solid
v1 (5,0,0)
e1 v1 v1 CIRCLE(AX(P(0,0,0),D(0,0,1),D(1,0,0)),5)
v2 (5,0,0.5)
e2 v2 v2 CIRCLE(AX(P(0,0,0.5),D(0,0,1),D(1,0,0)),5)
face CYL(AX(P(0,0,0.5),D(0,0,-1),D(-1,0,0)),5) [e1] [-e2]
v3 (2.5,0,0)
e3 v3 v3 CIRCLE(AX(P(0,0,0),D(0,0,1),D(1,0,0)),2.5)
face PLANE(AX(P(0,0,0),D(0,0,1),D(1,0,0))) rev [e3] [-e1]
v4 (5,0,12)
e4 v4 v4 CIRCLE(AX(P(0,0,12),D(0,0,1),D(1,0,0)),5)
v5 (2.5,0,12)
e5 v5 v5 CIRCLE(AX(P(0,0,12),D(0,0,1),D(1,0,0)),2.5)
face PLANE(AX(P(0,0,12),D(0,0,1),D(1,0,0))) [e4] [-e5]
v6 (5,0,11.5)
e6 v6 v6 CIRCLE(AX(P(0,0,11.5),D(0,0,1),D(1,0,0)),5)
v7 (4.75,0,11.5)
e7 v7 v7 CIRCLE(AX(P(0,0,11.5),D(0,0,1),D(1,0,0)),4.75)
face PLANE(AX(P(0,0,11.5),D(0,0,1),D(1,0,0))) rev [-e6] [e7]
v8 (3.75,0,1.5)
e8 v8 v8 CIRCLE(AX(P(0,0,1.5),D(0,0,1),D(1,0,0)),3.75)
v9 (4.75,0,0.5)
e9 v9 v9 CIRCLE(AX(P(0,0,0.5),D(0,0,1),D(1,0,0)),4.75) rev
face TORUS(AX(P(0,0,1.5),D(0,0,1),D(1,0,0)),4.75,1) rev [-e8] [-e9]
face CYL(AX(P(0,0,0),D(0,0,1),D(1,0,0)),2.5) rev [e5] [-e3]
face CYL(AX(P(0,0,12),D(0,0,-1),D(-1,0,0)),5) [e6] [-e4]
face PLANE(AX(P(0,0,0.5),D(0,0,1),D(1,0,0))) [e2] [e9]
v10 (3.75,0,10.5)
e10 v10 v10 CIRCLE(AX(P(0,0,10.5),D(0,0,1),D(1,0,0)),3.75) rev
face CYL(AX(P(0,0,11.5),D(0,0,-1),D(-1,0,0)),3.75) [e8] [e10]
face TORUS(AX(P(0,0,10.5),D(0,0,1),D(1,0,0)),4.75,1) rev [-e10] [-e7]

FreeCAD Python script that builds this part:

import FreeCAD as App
import Part
import Sketcher


def edges_at(feature, points):
    """Names of the edges that pass closest to the given points."""
    edges = feature.Shape.Edges
    near = lambda p: min(range(len(edges)), key=lambda i: edges[i].distToShape(Part.Vertex(*p))[0])
    return sorted({f"Edge{near(p) + 1}" for p in points})

doc = App.newDocument("Part")
body = doc.addObject("PartDesign::Body", "Body")

sketch1 = body.newObject("Sketcher::SketchObject", "Sketch")
sketch1.AttachmentSupport = (doc.getObject("XY_Plane"), [""])
sketch1.MapMode = "FlatFace"
sketch1.addGeometry(Part.Circle(App.Vector(0, 0, 0), App.Vector(0, 0, 1), 5), False)
sketch1.addConstraint([
    Sketcher.Constraint("Coincident", 0, 3, -1, 1),
    Sketcher.Constraint("Diameter", 0, 10.0),
])
pad1 = body.newObject("PartDesign::Pad", "Pad")
pad1.Profile = sketch1
pad1.Length = 0.5

sketch2 = body.newObject("Sketcher::SketchObject", "Sketch001")
sketch2.AttachmentSupport = (doc.getObject("XY_Plane"), [""])
sketch2.MapMode = "FlatFace"
sketch2.AttachmentOffset = App.Placement(App.Vector(0, 0, 0.5), App.Rotation())
sketch2.addGeometry(Part.Circle(App.Vector(0, 0, 0), App.Vector(0, 0, 1), 3.75), False)
sketch2.addConstraint([
    Sketcher.Constraint("Coincident", 0, 3, -1, 1),
    Sketcher.Constraint("Diameter", 0, 7.5),
])
pad2 = body.newObject("PartDesign::Pad", "Pad001")
pad2.Profile = sketch2
pad2.Length = 11

sketch3 = body.newObject("Sketcher::SketchObject", "Sketch002")
sketch3.AttachmentSupport = (doc.getObject("XY_Plane"), [""])
sketch3.MapMode = "FlatFace"
sketch3.AttachmentOffset = App.Placement(App.Vector(0, 0, 11.5), App.Rotation())
sketch3.addGeometry(Part.Circle(App.Vector(0, 0, 0), App.Vector(0, 0, 1), 5), False)
sketch3.addConstraint([
    Sketcher.Constraint("Coincident", 0, 3, -1, 1),
    Sketcher.Constraint("Diameter", 0, 10.0),
])
pad3 = body.newObject("PartDesign::Pad", "Pad002")
pad3.Profile = sketch3
pad3.Length = 0.5

sketch4 = body.newObject("Sketcher::SketchObject", "Sketch003")
sketch4.AttachmentSupport = (doc.getObject("XY_Plane"), [""])
sketch4.MapMode = "FlatFace"
sketch4.AttachmentOffset = App.Placement(App.Vector(0, 0, 12), App.Rotation())
sketch4.addGeometry(Part.Circle(App.Vector(0, 0, 0), App.Vector(0, 0, 1), 2.5), False)
sketch4.addConstraint([
    Sketcher.Constraint("Coincident", 0, 3, -1, 1),
    Sketcher.Constraint("Diameter", 0, 5.0),
])
pocket1 = body.newObject("PartDesign::Pocket", "Pocket")
pocket1.Profile = sketch4
pocket1.Type = "ThroughAll"
doc.recompute()

fillet = body.newObject("PartDesign::Fillet", "Fillet")
fillet.Base = (pocket1, edges_at(pocket1, [(-3.75, 0, 0.5), (-3.75, 0, 11.5)]))
fillet.Radius = 1

doc.recompute()
